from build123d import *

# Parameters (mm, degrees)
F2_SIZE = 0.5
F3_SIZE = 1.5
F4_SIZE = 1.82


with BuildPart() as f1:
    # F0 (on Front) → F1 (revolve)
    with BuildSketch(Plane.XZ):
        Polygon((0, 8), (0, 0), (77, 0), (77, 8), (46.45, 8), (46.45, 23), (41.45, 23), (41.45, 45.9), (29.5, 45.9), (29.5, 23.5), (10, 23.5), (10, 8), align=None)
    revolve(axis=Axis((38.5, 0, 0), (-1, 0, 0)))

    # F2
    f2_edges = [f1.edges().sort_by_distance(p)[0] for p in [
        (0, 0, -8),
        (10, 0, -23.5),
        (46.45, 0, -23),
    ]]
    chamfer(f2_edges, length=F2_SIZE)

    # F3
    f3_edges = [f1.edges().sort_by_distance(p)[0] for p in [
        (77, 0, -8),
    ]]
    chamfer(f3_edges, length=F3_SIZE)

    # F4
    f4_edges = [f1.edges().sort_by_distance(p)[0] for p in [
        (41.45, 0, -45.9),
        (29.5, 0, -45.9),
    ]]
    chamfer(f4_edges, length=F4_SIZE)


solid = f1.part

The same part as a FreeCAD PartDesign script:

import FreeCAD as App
import Part
import Sketcher

V = App.Vector
Q = App.Units.Quantity


def edges_at(feature, points):
    """Names of the edges that pass closest to the given points."""
    edges = feature.Shape.Edges
    near = lambda p: min(range(len(edges)), key=lambda i: edges[i].distToShape(Part.Vertex(*p))[0])
    return sorted({f"Edge{near(p) + 1}" for p in points})


def add_polygon(sketch, points):
    """Adds a closed chain of lines whose ends are joined by coincident constraints."""
    first, n = sketch.GeometryCount, len(points)
    for a, b in zip(points, points[1:] + points[:1]):
        sketch.addGeometry(Part.LineSegment(App.Vector(*a, 0), App.Vector(*b, 0)), False)
    for i in range(n):
        sketch.addConstraint(Sketcher.Constraint("Coincident", first + i, 2, first + (i + 1) % n, 1))

doc = App.newDocument("Part")
body = doc.addObject("PartDesign::Body", "Body")

# Sketch on XZ plane
sketch1 = doc.addObject("Sketcher::SketchObject", "Sketch")
body.addObject(sketch1)
sketch1.AttachmentSupport = (doc.XZ_Plane, [""])
sketch1.MapMode = "FlatFace"
add_polygon(sketch1, [(0, 8), (0, 0), (77, 0), (77, 8), (46, 8), (46, 23), (41, 23), (41, 46), (30, 46), (30, 24), (10, 24), (10, 8)])  # lines 0-11
sketch1.addConstraint(Sketcher.Constraint("Vertical", 0))
sketch1.addConstraint(Sketcher.Constraint("Horizontal", 1))
sketch1.addConstraint(Sketcher.Constraint("Vertical", 2))
sketch1.addConstraint(Sketcher.Constraint("Horizontal", 3))
sketch1.addConstraint(Sketcher.Constraint("Vertical", 4))
sketch1.addConstraint(Sketcher.Constraint("Horizontal", 5))
sketch1.addConstraint(Sketcher.Constraint("Vertical", 6))
sketch1.addConstraint(Sketcher.Constraint("Horizontal", 7))
sketch1.addConstraint(Sketcher.Constraint("Vertical", 8))
sketch1.addConstraint(Sketcher.Constraint("Horizontal", 9))
sketch1.addConstraint(Sketcher.Constraint("Vertical", 10))
sketch1.addConstraint(Sketcher.Constraint("Horizontal", 11))
sketch1.addConstraint(Sketcher.Constraint("Coincident", 0, 2, -1, 1))
sketch1.addConstraint(Sketcher.Constraint("Horizontal", 3, 2, 10, 2))
sketch1.addConstraint(Sketcher.Constraint("DistanceX", 1, 1, 1, 2, Q("77 mm")))
sketch1.addConstraint(Sketcher.Constraint("DistanceX", 5, 2, 5, 1, Q("5 mm")))
sketch1.addConstraint(Sketcher.Constraint("DistanceX", 11, 2, 11, 1, Q("10 mm")))
sketch1.addConstraint(Sketcher.Constraint("DistanceY", 0, 2, 0, 1, Q("8 mm")))
sketch1.addConstraint(Sketcher.Constraint("DistanceY", 4, 1, 4, 2, Q("15 mm")))
sketch1.addConstraint(Sketcher.Constraint("DistanceX", 9, 2, 9, 1, Q("19.5 mm")))
sketch1.addConstraint(Sketcher.Constraint("DistanceY", 6, 1, 6, 2, Q("22.9 mm")))
sketch1.addConstraint(Sketcher.Constraint("DistanceY", 8, 2, 8, 1, Q("22.4 mm")))
sketch1.addConstraint(Sketcher.Constraint("DistanceX", 3, 2, 3, 1, Q("30.55 mm")))
revolution = doc.addObject("PartDesign::Revolution", "Revolution")
body.addObject(revolution)
revolution.Profile = sketch1
revolution.ReferenceAxis = (sketch1, ["H_Axis"])
revolution.Angle = 360
doc.recompute()

chamfer = doc.addObject("PartDesign::Chamfer", "Chamfer")
body.addObject(chamfer)
chamfer.Base = (revolution, edges_at(revolution, [(0, 0, -8), (10, 0, -23.5), (46.45, 0, -23)]))
chamfer.Size = 0.5
doc.recompute()

chamfer2 = doc.addObject("PartDesign::Chamfer", "Chamfer001")
body.addObject(chamfer2)
chamfer2.Base = (chamfer, edges_at(chamfer, [(77, 0, -8)]))
chamfer2.Size = 1.5
doc.recompute()

chamfer3 = doc.addObject("PartDesign::Chamfer", "Chamfer002")
body.addObject(chamfer3)
chamfer3.Base = (chamfer2, edges_at(chamfer2, [(41.45, 0, -45.9), (29.5, 0, -45.9)]))
chamfer3.Size = 1.82

doc.recompute()
